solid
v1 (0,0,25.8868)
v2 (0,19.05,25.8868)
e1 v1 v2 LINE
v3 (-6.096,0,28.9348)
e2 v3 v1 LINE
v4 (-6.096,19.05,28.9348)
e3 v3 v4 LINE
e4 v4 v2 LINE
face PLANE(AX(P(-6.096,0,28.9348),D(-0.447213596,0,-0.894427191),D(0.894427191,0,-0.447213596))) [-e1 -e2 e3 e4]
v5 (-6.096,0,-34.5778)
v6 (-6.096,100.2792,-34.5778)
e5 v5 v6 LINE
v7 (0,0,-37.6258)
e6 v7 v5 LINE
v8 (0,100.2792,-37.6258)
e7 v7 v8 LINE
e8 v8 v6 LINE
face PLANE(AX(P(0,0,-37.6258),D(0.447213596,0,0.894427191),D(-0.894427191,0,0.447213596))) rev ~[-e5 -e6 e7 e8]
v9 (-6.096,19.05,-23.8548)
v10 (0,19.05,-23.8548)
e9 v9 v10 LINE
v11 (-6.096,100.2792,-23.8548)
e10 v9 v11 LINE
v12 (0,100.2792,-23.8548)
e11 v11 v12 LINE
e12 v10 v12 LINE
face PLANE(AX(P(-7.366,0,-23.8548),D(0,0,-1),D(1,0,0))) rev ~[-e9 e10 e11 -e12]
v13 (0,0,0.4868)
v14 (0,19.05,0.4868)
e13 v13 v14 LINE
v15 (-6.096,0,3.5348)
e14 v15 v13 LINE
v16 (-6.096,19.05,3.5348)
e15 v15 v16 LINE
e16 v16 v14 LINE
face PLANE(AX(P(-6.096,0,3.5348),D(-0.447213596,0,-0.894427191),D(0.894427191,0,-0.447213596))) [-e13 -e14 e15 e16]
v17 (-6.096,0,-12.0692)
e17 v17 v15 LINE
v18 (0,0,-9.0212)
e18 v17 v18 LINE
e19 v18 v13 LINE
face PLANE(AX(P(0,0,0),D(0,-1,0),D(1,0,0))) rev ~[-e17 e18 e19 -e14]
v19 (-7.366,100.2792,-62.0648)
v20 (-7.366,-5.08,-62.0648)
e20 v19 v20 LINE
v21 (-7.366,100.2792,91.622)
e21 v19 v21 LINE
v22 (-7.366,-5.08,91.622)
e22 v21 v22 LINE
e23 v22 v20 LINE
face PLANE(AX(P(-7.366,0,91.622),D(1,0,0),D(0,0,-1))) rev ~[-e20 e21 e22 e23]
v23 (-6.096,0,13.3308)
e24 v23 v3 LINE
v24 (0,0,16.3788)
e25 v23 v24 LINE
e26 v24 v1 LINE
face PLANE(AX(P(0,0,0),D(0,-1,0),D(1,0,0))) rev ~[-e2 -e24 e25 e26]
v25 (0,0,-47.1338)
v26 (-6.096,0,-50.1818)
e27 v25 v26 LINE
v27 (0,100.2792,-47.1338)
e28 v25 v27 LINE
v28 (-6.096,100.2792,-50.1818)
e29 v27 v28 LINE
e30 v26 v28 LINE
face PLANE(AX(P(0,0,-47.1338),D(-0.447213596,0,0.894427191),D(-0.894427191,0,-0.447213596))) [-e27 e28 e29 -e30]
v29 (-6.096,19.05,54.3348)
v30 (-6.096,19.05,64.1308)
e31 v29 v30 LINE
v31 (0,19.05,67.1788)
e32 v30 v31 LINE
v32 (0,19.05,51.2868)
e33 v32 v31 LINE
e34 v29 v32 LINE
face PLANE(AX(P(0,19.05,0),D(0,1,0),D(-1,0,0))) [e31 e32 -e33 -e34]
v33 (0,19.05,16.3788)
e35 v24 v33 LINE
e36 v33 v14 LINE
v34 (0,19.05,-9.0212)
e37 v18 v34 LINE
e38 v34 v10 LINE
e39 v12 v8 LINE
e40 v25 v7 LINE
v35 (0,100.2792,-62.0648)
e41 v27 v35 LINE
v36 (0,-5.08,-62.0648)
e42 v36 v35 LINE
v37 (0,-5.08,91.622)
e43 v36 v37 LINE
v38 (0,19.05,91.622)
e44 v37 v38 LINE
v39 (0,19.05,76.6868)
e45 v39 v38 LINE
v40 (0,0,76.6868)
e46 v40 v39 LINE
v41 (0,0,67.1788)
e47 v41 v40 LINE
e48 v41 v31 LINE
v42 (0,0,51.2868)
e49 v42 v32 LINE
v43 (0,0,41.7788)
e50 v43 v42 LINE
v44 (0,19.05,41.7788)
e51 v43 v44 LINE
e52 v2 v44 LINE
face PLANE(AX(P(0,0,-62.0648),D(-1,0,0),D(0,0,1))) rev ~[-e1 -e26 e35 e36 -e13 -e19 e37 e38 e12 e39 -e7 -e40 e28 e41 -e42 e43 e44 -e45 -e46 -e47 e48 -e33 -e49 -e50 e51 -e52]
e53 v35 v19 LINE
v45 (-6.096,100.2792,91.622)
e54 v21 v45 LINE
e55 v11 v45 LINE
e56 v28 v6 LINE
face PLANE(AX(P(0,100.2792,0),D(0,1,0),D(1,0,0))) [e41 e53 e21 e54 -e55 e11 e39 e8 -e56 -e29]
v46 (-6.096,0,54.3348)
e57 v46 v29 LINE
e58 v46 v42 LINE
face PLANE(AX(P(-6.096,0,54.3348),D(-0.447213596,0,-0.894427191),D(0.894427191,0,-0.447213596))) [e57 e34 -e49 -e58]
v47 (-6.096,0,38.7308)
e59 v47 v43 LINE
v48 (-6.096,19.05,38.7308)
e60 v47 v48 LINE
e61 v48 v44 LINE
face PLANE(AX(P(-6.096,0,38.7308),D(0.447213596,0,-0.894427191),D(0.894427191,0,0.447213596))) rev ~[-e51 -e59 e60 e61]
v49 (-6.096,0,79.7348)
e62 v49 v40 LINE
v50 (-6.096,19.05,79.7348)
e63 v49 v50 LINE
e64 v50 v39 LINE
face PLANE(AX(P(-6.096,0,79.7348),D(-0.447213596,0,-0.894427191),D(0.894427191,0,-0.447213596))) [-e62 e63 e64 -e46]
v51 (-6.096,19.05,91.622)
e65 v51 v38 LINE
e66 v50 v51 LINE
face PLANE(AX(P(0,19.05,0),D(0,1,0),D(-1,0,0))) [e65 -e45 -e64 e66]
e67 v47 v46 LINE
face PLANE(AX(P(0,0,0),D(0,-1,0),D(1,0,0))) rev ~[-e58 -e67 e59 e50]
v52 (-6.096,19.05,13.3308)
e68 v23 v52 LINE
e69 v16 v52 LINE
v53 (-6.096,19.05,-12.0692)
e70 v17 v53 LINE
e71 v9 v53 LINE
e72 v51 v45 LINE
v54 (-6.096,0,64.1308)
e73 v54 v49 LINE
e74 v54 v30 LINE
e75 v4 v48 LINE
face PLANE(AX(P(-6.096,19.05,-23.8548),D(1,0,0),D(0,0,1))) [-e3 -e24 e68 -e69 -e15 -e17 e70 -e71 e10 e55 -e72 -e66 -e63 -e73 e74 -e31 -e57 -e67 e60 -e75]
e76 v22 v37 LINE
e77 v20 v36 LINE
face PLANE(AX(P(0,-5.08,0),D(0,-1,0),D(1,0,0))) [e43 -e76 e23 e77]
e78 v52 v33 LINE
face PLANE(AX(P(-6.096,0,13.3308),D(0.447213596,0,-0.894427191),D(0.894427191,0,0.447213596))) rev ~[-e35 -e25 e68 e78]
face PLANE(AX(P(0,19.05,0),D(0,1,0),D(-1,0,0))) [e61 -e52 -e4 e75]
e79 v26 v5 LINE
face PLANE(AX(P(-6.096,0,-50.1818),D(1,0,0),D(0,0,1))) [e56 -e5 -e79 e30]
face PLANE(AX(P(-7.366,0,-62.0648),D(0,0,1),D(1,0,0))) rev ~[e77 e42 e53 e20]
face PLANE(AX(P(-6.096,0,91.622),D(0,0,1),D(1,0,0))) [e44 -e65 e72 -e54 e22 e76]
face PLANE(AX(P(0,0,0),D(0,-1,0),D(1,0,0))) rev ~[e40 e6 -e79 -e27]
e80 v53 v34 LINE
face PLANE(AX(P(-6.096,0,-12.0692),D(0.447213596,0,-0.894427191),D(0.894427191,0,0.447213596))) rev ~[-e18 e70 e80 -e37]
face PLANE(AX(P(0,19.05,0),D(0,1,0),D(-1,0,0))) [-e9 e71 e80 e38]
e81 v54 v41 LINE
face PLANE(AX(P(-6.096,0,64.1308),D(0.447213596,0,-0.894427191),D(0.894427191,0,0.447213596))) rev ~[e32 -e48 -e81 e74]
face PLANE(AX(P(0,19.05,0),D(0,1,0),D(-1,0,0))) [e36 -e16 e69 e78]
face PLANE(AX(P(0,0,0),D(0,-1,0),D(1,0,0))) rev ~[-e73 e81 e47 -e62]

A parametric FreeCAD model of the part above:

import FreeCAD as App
import Part
import Sketcher
Q = App.Units.Quantity

doc = App.newDocument("Part")
body = doc.addObject("PartDesign::Body", "Body")

# Sketch on XZ plane
sketch1 = body.newObject("Sketcher::SketchObject", "Sketch")
sketch1.AttachmentSupport = (doc.getObject("XZ_Plane"), [""])
sketch1.MapMode = "FlatFace"
sketch1.addGeometry([
    Part.LineSegment(App.Vector(-7, -24, 0), App.Vector(-7, 92, 0)),  # 0
    Part.LineSegment(App.Vector(-7, 92, 0), App.Vector(0, 92, 0)),  # 1
    Part.LineSegment(App.Vector(0, 92, 0), App.Vector(0, 77, 0)),  # 2
    Part.LineSegment(App.Vector(0, 77, 0), App.Vector(-6, 80, 0)),  # 3
    Part.LineSegment(App.Vector(-6, 80, 0), App.Vector(-6, 64, 0)),  # 4
    Part.LineSegment(App.Vector(-6, 64, 0), App.Vector(0, 67, 0)),  # 5
    Part.LineSegment(App.Vector(0, 67, 0), App.Vector(0, 51, 0)),  # 6
    Part.LineSegment(App.Vector(0, 51, 0), App.Vector(-6, 54, 0)),  # 7
    Part.LineSegment(App.Vector(-6, 54, 0), App.Vector(-6, 39, 0)),  # 8
    Part.LineSegment(App.Vector(-6, 39, 0), App.Vector(0, 42, 0)),  # 9
    Part.LineSegment(App.Vector(0, 42, 0), App.Vector(0, 26, 0)),  # 10
    Part.LineSegment(App.Vector(0, 26, 0), App.Vector(-6, 29, 0)),  # 11
    Part.LineSegment(App.Vector(-6, 29, 0), App.Vector(-6, 13, 0)),  # 12
    Part.LineSegment(App.Vector(-6, 13, 0), App.Vector(0, 16, 0)),  # 13
    Part.LineSegment(App.Vector(0, 16, 0), App.Vector(0, 0, 0)),  # 14
    Part.LineSegment(App.Vector(0, 0, 0), App.Vector(-6, 4, 0)),  # 15
    Part.LineSegment(App.Vector(-6, 4, 0), App.Vector(-6, -12, 0)),  # 16
    Part.LineSegment(App.Vector(-6, -12, 0), App.Vector(0, -9, 0)),  # 17
    Part.LineSegment(App.Vector(0, -9, 0), App.Vector(0, -24, 0)),  # 18
    Part.LineSegment(App.Vector(0, -24, 0), App.Vector(-7, -24, 0)),  # 19
], False)
sketch1.addConstraint([
    Sketcher.Constraint("Coincident", 0, 2, 1, 1),
    Sketcher.Constraint("Coincident", 1, 2, 2, 1),
    Sketcher.Constraint("Coincident", 2, 2, 3, 1),
    Sketcher.Constraint("Coincident", 3, 2, 4, 1),
    Sketcher.Constraint("Coincident", 4, 2, 5, 1),
    Sketcher.Constraint("Coincident", 5, 2, 6, 1),
    Sketcher.Constraint("Coincident", 6, 2, 7, 1),
    Sketcher.Constraint("Coincident", 7, 2, 8, 1),
    Sketcher.Constraint("Coincident", 8, 2, 9, 1),
    Sketcher.Constraint("Coincident", 9, 2, 10, 1),
    Sketcher.Constraint("Coincident", 10, 2, 11, 1),
    Sketcher.Constraint("Coincident", 11, 2, 12, 1),
    Sketcher.Constraint("Coincident", 12, 2, 13, 1),
    Sketcher.Constraint("Coincident", 13, 2, 14, 1),
    Sketcher.Constraint("Coincident", 14, 2, 15, 1),
    Sketcher.Constraint("Coincident", 15, 2, 16, 1),
    Sketcher.Constraint("Coincident", 16, 2, 17, 1),
    Sketcher.Constraint("Coincident", 17, 2, 18, 1),
    Sketcher.Constraint("Coincident", 18, 2, 19, 1),
    Sketcher.Constraint("Coincident", 19, 2, 0, 1),
    Sketcher.Constraint("Vertical", 0),
    Sketcher.Constraint("Horizontal", 1),
    Sketcher.Constraint("Vertical", 2),
    Sketcher.Constraint("Vertical", 4),
    Sketcher.Constraint("Vertical", 6),
    Sketcher.Constraint("Vertical", 8),
    Sketcher.Constraint("Vertical", 10),
    Sketcher.Constraint("Vertical", 12),
    Sketcher.Constraint("Vertical", 14),
    Sketcher.Constraint("Vertical", 16),
    Sketcher.Constraint("Vertical", 18),
    Sketcher.Constraint("Horizontal", 19),
    Sketcher.Constraint("PointOnObject", 1, 2, -2),
    Sketcher.Constraint("PointOnObject", 5, 2, -2),
    Sketcher.Constraint("PointOnObject", 9, 2, -2),
    Sketcher.Constraint("PointOnObject", 13, 2, -2),
    Sketcher.Constraint("PointOnObject", 17, 2, -2),
    Sketcher.Constraint("Parallel", 3, 7),
    Sketcher.Constraint("Parallel", 5, 9),
    Sketcher.Constraint("Parallel", 7, 11),
    Sketcher.Constraint("Parallel", 9, 13),
    Sketcher.Constraint("Parallel", 11, 15),
    Sketcher.Constraint("Parallel", 13, 17),
    Sketcher.Constraint("Vertical", 4, 2, 7, 2),
    Sketcher.Constraint("Vertical", 8, 2, 11, 2),
    Sketcher.Constraint("Vertical", 12, 2, 15, 2),
    Sketcher.Constraint("Equal", 4, 8),
    Sketcher.Constraint("Equal", 6, 10),
    Sketcher.Constraint("Equal", 8, 12),
    Sketcher.Constraint("Equal", 10, 14),
    Sketcher.Constraint("Equal", 12, 16),
    Sketcher.Constraint("Equal", 3, 5),
    Sketcher.Constraint("DistanceY", 6, 2, 2, 2, Q("1 in")),
    Sketcher.Constraint("DistanceX", 1, 1, 1, 2, Q("0.29 in")),
    Sketcher.Constraint("DistanceX", 3, 2, -1, 1, Q("0.24 in")),
    Sketcher.Constraint("DistanceY", 2, 2, 3, 2, Q("0.12 in")),
    Sketcher.Constraint("DistanceY", 18, 2, 16, 2, Q("0.464 in")),
    Sketcher.Constraint("DistanceY", 0, 1, 0, 2, 115.4768),
    Sketcher.Constraint("DistanceY", 2, 2, 2, 1, Q("0.588 in")),
    Sketcher.Constraint("DistanceY", 18, 2, -1, 1, 23.8548),
])
pad1 = body.newObject("PartDesign::Pad", "Pad")
pad1.Profile = sketch1
pad1.Length = Q("0.75 in")
pad1.Reversed = True

# Sketch on XZ plane
sketch2 = body.newObject("Sketcher::SketchObject", "Sketch001")
sketch2.AttachmentSupport = (doc.getObject("XZ_Plane"), [""])
sketch2.MapMode = "FlatFace"
sketch2.addGeometry([
    Part.LineSegment(App.Vector(-7, -24, 0), App.Vector(-7, -62, 0)),  # 0
    Part.LineSegment(App.Vector(-7, -62, 0), App.Vector(0, -62, 0)),  # 1
    Part.LineSegment(App.Vector(0, -62, 0), App.Vector(0, -47, 0)),  # 2
    Part.LineSegment(App.Vector(0, -47, 0), App.Vector(-6, -50, 0)),  # 3
    Part.LineSegment(App.Vector(-6, -50, 0), App.Vector(-6, -35, 0)),  # 4
    Part.LineSegment(App.Vector(-6, -35, 0), App.Vector(0, -38, 0)),  # 5
    Part.LineSegment(App.Vector(0, -38, 0), App.Vector(0, -24, 0)),  # 6
    Part.LineSegment(App.Vector(0, -24, 0), App.Vector(-7, -24, 0)),  # 7
], False)
sketch2.addConstraint([
    Sketcher.Constraint("Coincident", 0, 2, 1, 1),
    Sketcher.Constraint("Coincident", 1, 2, 2, 1),
    Sketcher.Constraint("Coincident", 2, 2, 3, 1),
    Sketcher.Constraint("Coincident", 3, 2, 4, 1),
    Sketcher.Constraint("Coincident", 4, 2, 5, 1),
    Sketcher.Constraint("Coincident", 5, 2, 6, 1),
    Sketcher.Constraint("Coincident", 6, 2, 7, 1),
    Sketcher.Constraint("Coincident", 7, 2, 0, 1),
    Sketcher.Constraint("Vertical", 0),
    Sketcher.Constraint("Horizontal", 1),
    Sketcher.Constraint("Vertical", 2),
    Sketcher.Constraint("Vertical", 4),
    Sketcher.Constraint("Vertical", 6),
    Sketcher.Constraint("Horizontal", 7),
    Sketcher.Constraint("PointOnObject", 1, 2, -2),
    Sketcher.Constraint("PointOnObject", 5, 2, -2),
    Sketcher.Constraint("Equal", 3, 5),
    Sketcher.Constraint("DistanceX", 1, 1, 1, 2, Q("0.29 in")),
    Sketcher.Constraint("DistanceX", 3, 2, -1, 1, Q("0.24 in")),
    Sketcher.Constraint("DistanceY", 3, 2, 2, 2, Q("0.12 in")),
    Sketcher.Constraint("DistanceY", 0, 2, 0, 1, 38.21),
    Sketcher.Constraint("DistanceY", 2, 1, 2, 2, 14.931),
    Sketcher.Constraint("DistanceY", 4, 1, 4, 2, 15.604),
    Sketcher.Constraint("DistanceY", 0, 2, -1, 1, Q("2.4435 in")),
])
pad2 = body.newObject("PartDesign::Pad", "Pad001")
pad2.Profile = sketch2
pad2.Length = Q("3.948 in")
pad2.Reversed = True

# Sketch on XZ plane
sketch3 = body.newObject("Sketcher::SketchObject", "Sketch002")
sketch3.AttachmentSupport = (doc.getObject("XZ_Plane"), [""])
sketch3.MapMode = "FlatFace"
sketch3.AttachmentOffset = App.Placement(App.Vector(0, 0, -0.75 * 25.4), App.Rotation())
sketch3.addGeometry([
    Part.LineSegment(App.Vector(-6.1, 91.6, 0), App.Vector(-6.1, -23.9, 0)),
    Part.LineSegment(App.Vector(-6.1, -23.9, 0), App.Vector(-7.4, -23.9, 0)),
    Part.LineSegment(App.Vector(-7.4, -23.9, 0), App.Vector(-7.4, 91.6, 0)),
    Part.LineSegment(App.Vector(-7.4, 91.6, 0), App.Vector(-6.1, 91.6, 0)),
], False)
sketch3.addConstraint([
    Sketcher.Constraint("Coincident", 0, 2, 1, 1),
    Sketcher.Constraint("Coincident", 1, 2, 2, 1),
    Sketcher.Constraint("Coincident", 2, 2, 3, 1),
    Sketcher.Constraint("Coincident", 3, 2, 0, 1),
    Sketcher.Constraint("Vertical", 0),
    Sketcher.Constraint("Horizontal", 1),
    Sketcher.Constraint("Vertical", 2),
    Sketcher.Constraint("Horizontal", 3),
    Sketcher.Constraint("DistanceX", 1, 2, 1, 1, Q("0.05 in")),
    Sketcher.Constraint("DistanceX", 0, 2, -1, 1, Q("0.24 in")),
    Sketcher.Constraint("DistanceY", 0, 2, 0, 1, 115.4768),
    Sketcher.Constraint("DistanceY", 0, 2, -1, 1, 23.8548),
])
pad3 = body.newObject("PartDesign::Pad", "Pad002")
pad3.Profile = sketch3
pad3.Length = Q("3.198 in")
pad3.Reversed = True

# Sketch on XZ plane
sketch4 = body.newObject("Sketcher::SketchObject", "Sketch003")
sketch4.AttachmentSupport = (doc.getObject("XZ_Plane"), [""])
sketch4.MapMode = "FlatFace"
sketch4.addGeometry([
    Part.LineSegment(App.Vector(0, 92, 0), App.Vector(-7, 92, 0)),
    Part.LineSegment(App.Vector(-7, 92, 0), App.Vector(-7, -62, 0)),
    Part.LineSegment(App.Vector(-7, -62, 0), App.Vector(0, -62, 0)),
    Part.LineSegment(App.Vector(0, -62, 0), App.Vector(0, 92, 0)),
], False)
sketch4.addConstraint([
    Sketcher.Constraint("Coincident", 0, 2, 1, 1),
    Sketcher.Constraint("Coincident", 1, 2, 2, 1),
    Sketcher.Constraint("Coincident", 2, 2, 3, 1),
    Sketcher.Constraint("Coincident", 3, 2, 0, 1),
    Sketcher.Constraint("Horizontal", 0),
    Sketcher.Constraint("Vertical", 1),
    Sketcher.Constraint("Horizontal", 2),
    Sketcher.Constraint("Vertical", 3),
    Sketcher.Constraint("PointOnObject", 2, 2, -2),
    Sketcher.Constraint("DistanceX", 0, 2, 0, 1, Q("0.29 in")),
    Sketcher.Constraint("DistanceY", 1, 2, 1, 1, 153.6868),
    Sketcher.Constraint("DistanceY", 1, 2, -1, 1, Q("2.4435 in")),
])
pad4 = body.newObject("PartDesign::Pad", "Pad003")
pad4.Profile = sketch4
pad4.Length = Q("0.2 in")

doc.recompute()
